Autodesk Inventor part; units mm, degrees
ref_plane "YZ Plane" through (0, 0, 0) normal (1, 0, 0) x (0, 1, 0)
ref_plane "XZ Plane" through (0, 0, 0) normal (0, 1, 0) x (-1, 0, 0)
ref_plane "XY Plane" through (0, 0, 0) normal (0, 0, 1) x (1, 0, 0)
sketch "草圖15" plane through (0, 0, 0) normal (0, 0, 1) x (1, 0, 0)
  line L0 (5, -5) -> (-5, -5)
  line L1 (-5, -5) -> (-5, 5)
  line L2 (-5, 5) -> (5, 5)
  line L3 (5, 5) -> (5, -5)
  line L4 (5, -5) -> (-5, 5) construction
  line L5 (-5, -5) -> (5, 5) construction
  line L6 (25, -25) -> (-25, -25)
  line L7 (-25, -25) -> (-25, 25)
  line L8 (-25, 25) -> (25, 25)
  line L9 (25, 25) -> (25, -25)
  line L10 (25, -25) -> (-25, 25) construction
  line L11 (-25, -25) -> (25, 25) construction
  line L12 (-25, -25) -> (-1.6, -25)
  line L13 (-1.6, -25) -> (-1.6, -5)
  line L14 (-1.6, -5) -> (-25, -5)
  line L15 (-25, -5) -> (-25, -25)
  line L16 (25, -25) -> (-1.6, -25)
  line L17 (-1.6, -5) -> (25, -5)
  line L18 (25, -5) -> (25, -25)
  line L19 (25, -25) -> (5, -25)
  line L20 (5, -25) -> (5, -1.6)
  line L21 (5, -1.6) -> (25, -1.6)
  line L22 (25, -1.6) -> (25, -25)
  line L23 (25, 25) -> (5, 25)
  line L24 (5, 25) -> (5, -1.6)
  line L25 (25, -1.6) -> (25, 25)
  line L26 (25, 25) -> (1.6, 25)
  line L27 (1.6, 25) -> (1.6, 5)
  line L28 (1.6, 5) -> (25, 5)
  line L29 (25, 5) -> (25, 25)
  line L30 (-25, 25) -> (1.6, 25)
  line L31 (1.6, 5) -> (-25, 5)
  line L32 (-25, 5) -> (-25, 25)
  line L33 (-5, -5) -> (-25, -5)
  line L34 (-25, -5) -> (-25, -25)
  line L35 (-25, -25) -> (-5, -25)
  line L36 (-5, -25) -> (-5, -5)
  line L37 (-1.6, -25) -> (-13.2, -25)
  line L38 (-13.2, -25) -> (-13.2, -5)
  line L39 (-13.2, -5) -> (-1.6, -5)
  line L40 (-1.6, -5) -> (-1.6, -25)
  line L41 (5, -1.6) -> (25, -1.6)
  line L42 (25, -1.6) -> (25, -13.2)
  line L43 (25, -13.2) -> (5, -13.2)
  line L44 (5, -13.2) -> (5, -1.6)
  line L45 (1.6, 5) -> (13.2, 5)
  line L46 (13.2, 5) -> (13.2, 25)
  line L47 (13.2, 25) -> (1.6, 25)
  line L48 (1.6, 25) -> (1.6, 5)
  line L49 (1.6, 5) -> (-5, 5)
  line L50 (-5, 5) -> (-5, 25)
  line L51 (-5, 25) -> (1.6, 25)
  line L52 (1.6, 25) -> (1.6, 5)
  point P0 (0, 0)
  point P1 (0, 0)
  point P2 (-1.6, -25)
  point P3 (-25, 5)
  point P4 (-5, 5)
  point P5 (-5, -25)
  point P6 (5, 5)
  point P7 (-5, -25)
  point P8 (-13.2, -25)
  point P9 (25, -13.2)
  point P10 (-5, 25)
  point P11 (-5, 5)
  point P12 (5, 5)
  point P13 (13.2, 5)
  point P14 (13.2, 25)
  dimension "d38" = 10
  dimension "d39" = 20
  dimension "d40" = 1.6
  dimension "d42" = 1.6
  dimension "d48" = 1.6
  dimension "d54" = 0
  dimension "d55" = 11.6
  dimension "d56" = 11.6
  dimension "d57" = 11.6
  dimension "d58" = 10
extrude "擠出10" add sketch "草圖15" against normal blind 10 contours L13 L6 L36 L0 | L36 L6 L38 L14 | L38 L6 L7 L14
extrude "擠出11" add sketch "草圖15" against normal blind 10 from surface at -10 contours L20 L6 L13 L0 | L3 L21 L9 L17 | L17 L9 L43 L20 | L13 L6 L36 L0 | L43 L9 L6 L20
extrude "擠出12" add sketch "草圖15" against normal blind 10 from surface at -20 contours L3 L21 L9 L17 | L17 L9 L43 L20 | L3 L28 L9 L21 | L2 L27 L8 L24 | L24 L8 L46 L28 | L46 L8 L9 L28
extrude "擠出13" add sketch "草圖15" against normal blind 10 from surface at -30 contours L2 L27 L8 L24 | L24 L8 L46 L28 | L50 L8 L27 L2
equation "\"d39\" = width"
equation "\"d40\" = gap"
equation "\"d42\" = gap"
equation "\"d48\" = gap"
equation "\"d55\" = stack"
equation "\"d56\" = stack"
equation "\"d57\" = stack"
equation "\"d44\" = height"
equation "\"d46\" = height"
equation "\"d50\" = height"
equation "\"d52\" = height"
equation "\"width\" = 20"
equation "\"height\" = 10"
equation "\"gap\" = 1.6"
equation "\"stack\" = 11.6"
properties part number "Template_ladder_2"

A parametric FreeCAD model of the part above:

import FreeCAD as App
import Part
import Sketcher
Q = App.Units.Quantity

doc = App.newDocument("Part")
body = doc.addObject("PartDesign::Body", "Body")

sketch1 = body.newObject("Sketcher::SketchObject", "Sketch")
sketch1.AttachmentSupport = (doc.getObject("XY_Plane"), [""])
sketch1.MapMode = "FlatFace"
sketch1.addGeometry([
    Part.LineSegment(App.Vector(-1.6, -25, 0), App.Vector(-1.6, -5, 0)),
    Part.LineSegment(App.Vector(-1.6, -5, 0), App.Vector(-25, -5, 0)),
    Part.LineSegment(App.Vector(-25, -5, 0), App.Vector(-25, -25, 0)),
    Part.LineSegment(App.Vector(-25, -25, 0), App.Vector(-1.6, -25, 0)),
], False)
sketch1.addConstraint([
    Sketcher.Constraint("Coincident", 0, 2, 1, 1),
    Sketcher.Constraint("Coincident", 1, 2, 2, 1),
    Sketcher.Constraint("Coincident", 2, 2, 3, 1),
    Sketcher.Constraint("Coincident", 3, 2, 0, 1),
    Sketcher.Constraint("Vertical", 0),
    Sketcher.Constraint("Horizontal", 1),
    Sketcher.Constraint("Vertical", 2),
    Sketcher.Constraint("Horizontal", 3),
    Sketcher.Constraint("DistanceY", 0, 1, 0, 2, Q("20 mm")),
    Sketcher.Constraint("DistanceX", 0, 2, -1, 1, Q("1.6 mm")),
    Sketcher.Constraint("DistanceX", 1, 2, 1, 1, Q("23.4 mm")),
    Sketcher.Constraint("DistanceY", 0, 2, -1, 1, Q("5 mm")),
])
pad1 = body.newObject("PartDesign::Pad", "Pad")
pad1.Profile = sketch1
pad1.Length = 10
pad1.Reversed = True

sketch2 = body.newObject("Sketcher::SketchObject", "Sketch001")
sketch2.AttachmentSupport = (doc.getObject("XY_Plane"), [""])
sketch2.MapMode = "FlatFace"
sketch2.AttachmentOffset = App.Placement(App.Vector(0, 0, -10), App.Rotation())
sketch2.addGeometry([
    Part.LineSegment(App.Vector(25, -25, 0), App.Vector(25, -1.6, 0)),
    Part.LineSegment(App.Vector(25, -1.6, 0), App.Vector(5, -1.6, 0)),
    Part.LineSegment(App.Vector(5, -1.6, 0), App.Vector(5, -5, 0)),
    Part.LineSegment(App.Vector(5, -5, 0), App.Vector(-5, -5, 0)),
    Part.LineSegment(App.Vector(-5, -5, 0), App.Vector(-5, -25, 0)),
    Part.LineSegment(App.Vector(-5, -25, 0), App.Vector(25, -25, 0)),
], False)
sketch2.addConstraint([
    Sketcher.Constraint("Coincident", 0, 2, 1, 1),
    Sketcher.Constraint("Coincident", 1, 2, 2, 1),
    Sketcher.Constraint("Coincident", 2, 2, 3, 1),
    Sketcher.Constraint("Coincident", 3, 2, 4, 1),
    Sketcher.Constraint("Coincident", 4, 2, 5, 1),
    Sketcher.Constraint("Coincident", 5, 2, 0, 1),
    Sketcher.Constraint("Vertical", 0),
    Sketcher.Constraint("Horizontal", 1),
    Sketcher.Constraint("Vertical", 2),
    Sketcher.Constraint("Horizontal", 3),
    Sketcher.Constraint("Vertical", 4),
    Sketcher.Constraint("Horizontal", 5),
    Sketcher.Constraint("Equal", 1, 4),
    Sketcher.Constraint("DistanceX", 1, 2, 1, 1, Q("20 mm")),
    Sketcher.Constraint("DistanceX", 3, 2, 3, 1, Q("10 mm")),
    Sketcher.Constraint("DistanceY", 0, 2, -1, 1, Q("1.6 mm")),
    Sketcher.Constraint("DistanceY", 0, 1, 0, 2, Q("23.4 mm")),
    Sketcher.Constraint("DistanceX", -1, 1, 0, 2, Q("25 mm")),
])
pad2 = body.newObject("PartDesign::Pad", "Pad001")
pad2.Profile = sketch2
pad2.Length = 10
pad2.Reversed = True

sketch3 = body.newObject("Sketcher::SketchObject", "Sketch002")
sketch3.AttachmentSupport = (doc.getObject("XY_Plane"), [""])
sketch3.MapMode = "FlatFace"
sketch3.AttachmentOffset = App.Placement(App.Vector(0, 0, -20), App.Rotation())
sketch3.addGeometry([
    Part.LineSegment(App.Vector(5, -13.2, 0), App.Vector(25, -13.2, 0)),
    Part.LineSegment(App.Vector(25, -13.2, 0), App.Vector(25, 25, 0)),
    Part.LineSegment(App.Vector(25, 25, 0), App.Vector(1.6, 25, 0)),
    Part.LineSegment(App.Vector(1.6, 25, 0), App.Vector(1.6, 5, 0)),
    Part.LineSegment(App.Vector(1.6, 5, 0), App.Vector(5, 5, 0)),
    Part.LineSegment(App.Vector(5, 5, 0), App.Vector(5, -13.2, 0)),
], False)
sketch3.addConstraint([
    Sketcher.Constraint("Coincident", 0, 2, 1, 1),
    Sketcher.Constraint("Coincident", 1, 2, 2, 1),
    Sketcher.Constraint("Coincident", 2, 2, 3, 1),
    Sketcher.Constraint("Coincident", 3, 2, 4, 1),
    Sketcher.Constraint("Coincident", 4, 2, 5, 1),
    Sketcher.Constraint("Coincident", 5, 2, 0, 1),
    Sketcher.Constraint("Horizontal", 0),
    Sketcher.Constraint("Vertical", 1),
    Sketcher.Constraint("Horizontal", 2),
    Sketcher.Constraint("Vertical", 3),
    Sketcher.Constraint("Horizontal", 4),
    Sketcher.Constraint("Vertical", 5),
    Sketcher.Constraint("Equal", 0, 3),
    Sketcher.Constraint("DistanceX", 0, 1, 0, 2, Q("20 mm")),
    Sketcher.Constraint("DistanceX", -1, 1, 2, 2, Q("1.6 mm")),
    Sketcher.Constraint("DistanceX", 2, 2, 2, 1, Q("23.4 mm")),
    Sketcher.Constraint("DistanceY", 1, 1, 1, 2, Q("38.2 mm")),
    Sketcher.Constraint("DistanceY", -1, 1, 1, 2, Q("25 mm")),
])
pad3 = body.newObject("PartDesign::Pad", "Pad002")
pad3.Profile = sketch3
pad3.Length = 10
pad3.Reversed = True

sketch4 = body.newObject("Sketcher::SketchObject", "Sketch003")
sketch4.AttachmentSupport = (doc.getObject("XY_Plane"), [""])
sketch4.MapMode = "FlatFace"
sketch4.AttachmentOffset = App.Placement(App.Vector(0, 0, -30), App.Rotation())
sketch4.addGeometry([
    Part.LineSegment(App.Vector(13.2, 5, 0), App.Vector(13.2, 25, 0)),
    Part.LineSegment(App.Vector(13.2, 25, 0), App.Vector(-5, 25, 0)),
    Part.LineSegment(App.Vector(-5, 25, 0), App.Vector(-5, 5, 0)),
    Part.LineSegment(App.Vector(-5, 5, 0), App.Vector(13.2, 5, 0)),
], False)
sketch4.addConstraint([
    Sketcher.Constraint("Coincident", 0, 2, 1, 1),
    Sketcher.Constraint("Coincident", 1, 2, 2, 1),
    Sketcher.Constraint("Coincident", 2, 2, 3, 1),
    Sketcher.Constraint("Coincident", 3, 2, 0, 1),
    Sketcher.Constraint("Vertical", 0),
    Sketcher.Constraint("Horizontal", 1),
    Sketcher.Constraint("Vertical", 2),
    Sketcher.Constraint("Horizontal", 3),
    Sketcher.Constraint("DistanceY", 0, 1, 0, 2, Q("20 mm")),
    Sketcher.Constraint("DistanceX", 1, 2, 1, 1, Q("18.2 mm")),
    Sketcher.Constraint("DistanceY", -1, 1, 0, 2, Q("25 mm")),
    Sketcher.Constraint("DistanceX", 1, 2, -1, 1, Q("5 mm")),
])
pad4 = body.newObject("PartDesign::Pad", "Pad003")
pad4.Profile = sketch4
pad4.Length = 10
pad4.Reversed = True

doc.recompute()
